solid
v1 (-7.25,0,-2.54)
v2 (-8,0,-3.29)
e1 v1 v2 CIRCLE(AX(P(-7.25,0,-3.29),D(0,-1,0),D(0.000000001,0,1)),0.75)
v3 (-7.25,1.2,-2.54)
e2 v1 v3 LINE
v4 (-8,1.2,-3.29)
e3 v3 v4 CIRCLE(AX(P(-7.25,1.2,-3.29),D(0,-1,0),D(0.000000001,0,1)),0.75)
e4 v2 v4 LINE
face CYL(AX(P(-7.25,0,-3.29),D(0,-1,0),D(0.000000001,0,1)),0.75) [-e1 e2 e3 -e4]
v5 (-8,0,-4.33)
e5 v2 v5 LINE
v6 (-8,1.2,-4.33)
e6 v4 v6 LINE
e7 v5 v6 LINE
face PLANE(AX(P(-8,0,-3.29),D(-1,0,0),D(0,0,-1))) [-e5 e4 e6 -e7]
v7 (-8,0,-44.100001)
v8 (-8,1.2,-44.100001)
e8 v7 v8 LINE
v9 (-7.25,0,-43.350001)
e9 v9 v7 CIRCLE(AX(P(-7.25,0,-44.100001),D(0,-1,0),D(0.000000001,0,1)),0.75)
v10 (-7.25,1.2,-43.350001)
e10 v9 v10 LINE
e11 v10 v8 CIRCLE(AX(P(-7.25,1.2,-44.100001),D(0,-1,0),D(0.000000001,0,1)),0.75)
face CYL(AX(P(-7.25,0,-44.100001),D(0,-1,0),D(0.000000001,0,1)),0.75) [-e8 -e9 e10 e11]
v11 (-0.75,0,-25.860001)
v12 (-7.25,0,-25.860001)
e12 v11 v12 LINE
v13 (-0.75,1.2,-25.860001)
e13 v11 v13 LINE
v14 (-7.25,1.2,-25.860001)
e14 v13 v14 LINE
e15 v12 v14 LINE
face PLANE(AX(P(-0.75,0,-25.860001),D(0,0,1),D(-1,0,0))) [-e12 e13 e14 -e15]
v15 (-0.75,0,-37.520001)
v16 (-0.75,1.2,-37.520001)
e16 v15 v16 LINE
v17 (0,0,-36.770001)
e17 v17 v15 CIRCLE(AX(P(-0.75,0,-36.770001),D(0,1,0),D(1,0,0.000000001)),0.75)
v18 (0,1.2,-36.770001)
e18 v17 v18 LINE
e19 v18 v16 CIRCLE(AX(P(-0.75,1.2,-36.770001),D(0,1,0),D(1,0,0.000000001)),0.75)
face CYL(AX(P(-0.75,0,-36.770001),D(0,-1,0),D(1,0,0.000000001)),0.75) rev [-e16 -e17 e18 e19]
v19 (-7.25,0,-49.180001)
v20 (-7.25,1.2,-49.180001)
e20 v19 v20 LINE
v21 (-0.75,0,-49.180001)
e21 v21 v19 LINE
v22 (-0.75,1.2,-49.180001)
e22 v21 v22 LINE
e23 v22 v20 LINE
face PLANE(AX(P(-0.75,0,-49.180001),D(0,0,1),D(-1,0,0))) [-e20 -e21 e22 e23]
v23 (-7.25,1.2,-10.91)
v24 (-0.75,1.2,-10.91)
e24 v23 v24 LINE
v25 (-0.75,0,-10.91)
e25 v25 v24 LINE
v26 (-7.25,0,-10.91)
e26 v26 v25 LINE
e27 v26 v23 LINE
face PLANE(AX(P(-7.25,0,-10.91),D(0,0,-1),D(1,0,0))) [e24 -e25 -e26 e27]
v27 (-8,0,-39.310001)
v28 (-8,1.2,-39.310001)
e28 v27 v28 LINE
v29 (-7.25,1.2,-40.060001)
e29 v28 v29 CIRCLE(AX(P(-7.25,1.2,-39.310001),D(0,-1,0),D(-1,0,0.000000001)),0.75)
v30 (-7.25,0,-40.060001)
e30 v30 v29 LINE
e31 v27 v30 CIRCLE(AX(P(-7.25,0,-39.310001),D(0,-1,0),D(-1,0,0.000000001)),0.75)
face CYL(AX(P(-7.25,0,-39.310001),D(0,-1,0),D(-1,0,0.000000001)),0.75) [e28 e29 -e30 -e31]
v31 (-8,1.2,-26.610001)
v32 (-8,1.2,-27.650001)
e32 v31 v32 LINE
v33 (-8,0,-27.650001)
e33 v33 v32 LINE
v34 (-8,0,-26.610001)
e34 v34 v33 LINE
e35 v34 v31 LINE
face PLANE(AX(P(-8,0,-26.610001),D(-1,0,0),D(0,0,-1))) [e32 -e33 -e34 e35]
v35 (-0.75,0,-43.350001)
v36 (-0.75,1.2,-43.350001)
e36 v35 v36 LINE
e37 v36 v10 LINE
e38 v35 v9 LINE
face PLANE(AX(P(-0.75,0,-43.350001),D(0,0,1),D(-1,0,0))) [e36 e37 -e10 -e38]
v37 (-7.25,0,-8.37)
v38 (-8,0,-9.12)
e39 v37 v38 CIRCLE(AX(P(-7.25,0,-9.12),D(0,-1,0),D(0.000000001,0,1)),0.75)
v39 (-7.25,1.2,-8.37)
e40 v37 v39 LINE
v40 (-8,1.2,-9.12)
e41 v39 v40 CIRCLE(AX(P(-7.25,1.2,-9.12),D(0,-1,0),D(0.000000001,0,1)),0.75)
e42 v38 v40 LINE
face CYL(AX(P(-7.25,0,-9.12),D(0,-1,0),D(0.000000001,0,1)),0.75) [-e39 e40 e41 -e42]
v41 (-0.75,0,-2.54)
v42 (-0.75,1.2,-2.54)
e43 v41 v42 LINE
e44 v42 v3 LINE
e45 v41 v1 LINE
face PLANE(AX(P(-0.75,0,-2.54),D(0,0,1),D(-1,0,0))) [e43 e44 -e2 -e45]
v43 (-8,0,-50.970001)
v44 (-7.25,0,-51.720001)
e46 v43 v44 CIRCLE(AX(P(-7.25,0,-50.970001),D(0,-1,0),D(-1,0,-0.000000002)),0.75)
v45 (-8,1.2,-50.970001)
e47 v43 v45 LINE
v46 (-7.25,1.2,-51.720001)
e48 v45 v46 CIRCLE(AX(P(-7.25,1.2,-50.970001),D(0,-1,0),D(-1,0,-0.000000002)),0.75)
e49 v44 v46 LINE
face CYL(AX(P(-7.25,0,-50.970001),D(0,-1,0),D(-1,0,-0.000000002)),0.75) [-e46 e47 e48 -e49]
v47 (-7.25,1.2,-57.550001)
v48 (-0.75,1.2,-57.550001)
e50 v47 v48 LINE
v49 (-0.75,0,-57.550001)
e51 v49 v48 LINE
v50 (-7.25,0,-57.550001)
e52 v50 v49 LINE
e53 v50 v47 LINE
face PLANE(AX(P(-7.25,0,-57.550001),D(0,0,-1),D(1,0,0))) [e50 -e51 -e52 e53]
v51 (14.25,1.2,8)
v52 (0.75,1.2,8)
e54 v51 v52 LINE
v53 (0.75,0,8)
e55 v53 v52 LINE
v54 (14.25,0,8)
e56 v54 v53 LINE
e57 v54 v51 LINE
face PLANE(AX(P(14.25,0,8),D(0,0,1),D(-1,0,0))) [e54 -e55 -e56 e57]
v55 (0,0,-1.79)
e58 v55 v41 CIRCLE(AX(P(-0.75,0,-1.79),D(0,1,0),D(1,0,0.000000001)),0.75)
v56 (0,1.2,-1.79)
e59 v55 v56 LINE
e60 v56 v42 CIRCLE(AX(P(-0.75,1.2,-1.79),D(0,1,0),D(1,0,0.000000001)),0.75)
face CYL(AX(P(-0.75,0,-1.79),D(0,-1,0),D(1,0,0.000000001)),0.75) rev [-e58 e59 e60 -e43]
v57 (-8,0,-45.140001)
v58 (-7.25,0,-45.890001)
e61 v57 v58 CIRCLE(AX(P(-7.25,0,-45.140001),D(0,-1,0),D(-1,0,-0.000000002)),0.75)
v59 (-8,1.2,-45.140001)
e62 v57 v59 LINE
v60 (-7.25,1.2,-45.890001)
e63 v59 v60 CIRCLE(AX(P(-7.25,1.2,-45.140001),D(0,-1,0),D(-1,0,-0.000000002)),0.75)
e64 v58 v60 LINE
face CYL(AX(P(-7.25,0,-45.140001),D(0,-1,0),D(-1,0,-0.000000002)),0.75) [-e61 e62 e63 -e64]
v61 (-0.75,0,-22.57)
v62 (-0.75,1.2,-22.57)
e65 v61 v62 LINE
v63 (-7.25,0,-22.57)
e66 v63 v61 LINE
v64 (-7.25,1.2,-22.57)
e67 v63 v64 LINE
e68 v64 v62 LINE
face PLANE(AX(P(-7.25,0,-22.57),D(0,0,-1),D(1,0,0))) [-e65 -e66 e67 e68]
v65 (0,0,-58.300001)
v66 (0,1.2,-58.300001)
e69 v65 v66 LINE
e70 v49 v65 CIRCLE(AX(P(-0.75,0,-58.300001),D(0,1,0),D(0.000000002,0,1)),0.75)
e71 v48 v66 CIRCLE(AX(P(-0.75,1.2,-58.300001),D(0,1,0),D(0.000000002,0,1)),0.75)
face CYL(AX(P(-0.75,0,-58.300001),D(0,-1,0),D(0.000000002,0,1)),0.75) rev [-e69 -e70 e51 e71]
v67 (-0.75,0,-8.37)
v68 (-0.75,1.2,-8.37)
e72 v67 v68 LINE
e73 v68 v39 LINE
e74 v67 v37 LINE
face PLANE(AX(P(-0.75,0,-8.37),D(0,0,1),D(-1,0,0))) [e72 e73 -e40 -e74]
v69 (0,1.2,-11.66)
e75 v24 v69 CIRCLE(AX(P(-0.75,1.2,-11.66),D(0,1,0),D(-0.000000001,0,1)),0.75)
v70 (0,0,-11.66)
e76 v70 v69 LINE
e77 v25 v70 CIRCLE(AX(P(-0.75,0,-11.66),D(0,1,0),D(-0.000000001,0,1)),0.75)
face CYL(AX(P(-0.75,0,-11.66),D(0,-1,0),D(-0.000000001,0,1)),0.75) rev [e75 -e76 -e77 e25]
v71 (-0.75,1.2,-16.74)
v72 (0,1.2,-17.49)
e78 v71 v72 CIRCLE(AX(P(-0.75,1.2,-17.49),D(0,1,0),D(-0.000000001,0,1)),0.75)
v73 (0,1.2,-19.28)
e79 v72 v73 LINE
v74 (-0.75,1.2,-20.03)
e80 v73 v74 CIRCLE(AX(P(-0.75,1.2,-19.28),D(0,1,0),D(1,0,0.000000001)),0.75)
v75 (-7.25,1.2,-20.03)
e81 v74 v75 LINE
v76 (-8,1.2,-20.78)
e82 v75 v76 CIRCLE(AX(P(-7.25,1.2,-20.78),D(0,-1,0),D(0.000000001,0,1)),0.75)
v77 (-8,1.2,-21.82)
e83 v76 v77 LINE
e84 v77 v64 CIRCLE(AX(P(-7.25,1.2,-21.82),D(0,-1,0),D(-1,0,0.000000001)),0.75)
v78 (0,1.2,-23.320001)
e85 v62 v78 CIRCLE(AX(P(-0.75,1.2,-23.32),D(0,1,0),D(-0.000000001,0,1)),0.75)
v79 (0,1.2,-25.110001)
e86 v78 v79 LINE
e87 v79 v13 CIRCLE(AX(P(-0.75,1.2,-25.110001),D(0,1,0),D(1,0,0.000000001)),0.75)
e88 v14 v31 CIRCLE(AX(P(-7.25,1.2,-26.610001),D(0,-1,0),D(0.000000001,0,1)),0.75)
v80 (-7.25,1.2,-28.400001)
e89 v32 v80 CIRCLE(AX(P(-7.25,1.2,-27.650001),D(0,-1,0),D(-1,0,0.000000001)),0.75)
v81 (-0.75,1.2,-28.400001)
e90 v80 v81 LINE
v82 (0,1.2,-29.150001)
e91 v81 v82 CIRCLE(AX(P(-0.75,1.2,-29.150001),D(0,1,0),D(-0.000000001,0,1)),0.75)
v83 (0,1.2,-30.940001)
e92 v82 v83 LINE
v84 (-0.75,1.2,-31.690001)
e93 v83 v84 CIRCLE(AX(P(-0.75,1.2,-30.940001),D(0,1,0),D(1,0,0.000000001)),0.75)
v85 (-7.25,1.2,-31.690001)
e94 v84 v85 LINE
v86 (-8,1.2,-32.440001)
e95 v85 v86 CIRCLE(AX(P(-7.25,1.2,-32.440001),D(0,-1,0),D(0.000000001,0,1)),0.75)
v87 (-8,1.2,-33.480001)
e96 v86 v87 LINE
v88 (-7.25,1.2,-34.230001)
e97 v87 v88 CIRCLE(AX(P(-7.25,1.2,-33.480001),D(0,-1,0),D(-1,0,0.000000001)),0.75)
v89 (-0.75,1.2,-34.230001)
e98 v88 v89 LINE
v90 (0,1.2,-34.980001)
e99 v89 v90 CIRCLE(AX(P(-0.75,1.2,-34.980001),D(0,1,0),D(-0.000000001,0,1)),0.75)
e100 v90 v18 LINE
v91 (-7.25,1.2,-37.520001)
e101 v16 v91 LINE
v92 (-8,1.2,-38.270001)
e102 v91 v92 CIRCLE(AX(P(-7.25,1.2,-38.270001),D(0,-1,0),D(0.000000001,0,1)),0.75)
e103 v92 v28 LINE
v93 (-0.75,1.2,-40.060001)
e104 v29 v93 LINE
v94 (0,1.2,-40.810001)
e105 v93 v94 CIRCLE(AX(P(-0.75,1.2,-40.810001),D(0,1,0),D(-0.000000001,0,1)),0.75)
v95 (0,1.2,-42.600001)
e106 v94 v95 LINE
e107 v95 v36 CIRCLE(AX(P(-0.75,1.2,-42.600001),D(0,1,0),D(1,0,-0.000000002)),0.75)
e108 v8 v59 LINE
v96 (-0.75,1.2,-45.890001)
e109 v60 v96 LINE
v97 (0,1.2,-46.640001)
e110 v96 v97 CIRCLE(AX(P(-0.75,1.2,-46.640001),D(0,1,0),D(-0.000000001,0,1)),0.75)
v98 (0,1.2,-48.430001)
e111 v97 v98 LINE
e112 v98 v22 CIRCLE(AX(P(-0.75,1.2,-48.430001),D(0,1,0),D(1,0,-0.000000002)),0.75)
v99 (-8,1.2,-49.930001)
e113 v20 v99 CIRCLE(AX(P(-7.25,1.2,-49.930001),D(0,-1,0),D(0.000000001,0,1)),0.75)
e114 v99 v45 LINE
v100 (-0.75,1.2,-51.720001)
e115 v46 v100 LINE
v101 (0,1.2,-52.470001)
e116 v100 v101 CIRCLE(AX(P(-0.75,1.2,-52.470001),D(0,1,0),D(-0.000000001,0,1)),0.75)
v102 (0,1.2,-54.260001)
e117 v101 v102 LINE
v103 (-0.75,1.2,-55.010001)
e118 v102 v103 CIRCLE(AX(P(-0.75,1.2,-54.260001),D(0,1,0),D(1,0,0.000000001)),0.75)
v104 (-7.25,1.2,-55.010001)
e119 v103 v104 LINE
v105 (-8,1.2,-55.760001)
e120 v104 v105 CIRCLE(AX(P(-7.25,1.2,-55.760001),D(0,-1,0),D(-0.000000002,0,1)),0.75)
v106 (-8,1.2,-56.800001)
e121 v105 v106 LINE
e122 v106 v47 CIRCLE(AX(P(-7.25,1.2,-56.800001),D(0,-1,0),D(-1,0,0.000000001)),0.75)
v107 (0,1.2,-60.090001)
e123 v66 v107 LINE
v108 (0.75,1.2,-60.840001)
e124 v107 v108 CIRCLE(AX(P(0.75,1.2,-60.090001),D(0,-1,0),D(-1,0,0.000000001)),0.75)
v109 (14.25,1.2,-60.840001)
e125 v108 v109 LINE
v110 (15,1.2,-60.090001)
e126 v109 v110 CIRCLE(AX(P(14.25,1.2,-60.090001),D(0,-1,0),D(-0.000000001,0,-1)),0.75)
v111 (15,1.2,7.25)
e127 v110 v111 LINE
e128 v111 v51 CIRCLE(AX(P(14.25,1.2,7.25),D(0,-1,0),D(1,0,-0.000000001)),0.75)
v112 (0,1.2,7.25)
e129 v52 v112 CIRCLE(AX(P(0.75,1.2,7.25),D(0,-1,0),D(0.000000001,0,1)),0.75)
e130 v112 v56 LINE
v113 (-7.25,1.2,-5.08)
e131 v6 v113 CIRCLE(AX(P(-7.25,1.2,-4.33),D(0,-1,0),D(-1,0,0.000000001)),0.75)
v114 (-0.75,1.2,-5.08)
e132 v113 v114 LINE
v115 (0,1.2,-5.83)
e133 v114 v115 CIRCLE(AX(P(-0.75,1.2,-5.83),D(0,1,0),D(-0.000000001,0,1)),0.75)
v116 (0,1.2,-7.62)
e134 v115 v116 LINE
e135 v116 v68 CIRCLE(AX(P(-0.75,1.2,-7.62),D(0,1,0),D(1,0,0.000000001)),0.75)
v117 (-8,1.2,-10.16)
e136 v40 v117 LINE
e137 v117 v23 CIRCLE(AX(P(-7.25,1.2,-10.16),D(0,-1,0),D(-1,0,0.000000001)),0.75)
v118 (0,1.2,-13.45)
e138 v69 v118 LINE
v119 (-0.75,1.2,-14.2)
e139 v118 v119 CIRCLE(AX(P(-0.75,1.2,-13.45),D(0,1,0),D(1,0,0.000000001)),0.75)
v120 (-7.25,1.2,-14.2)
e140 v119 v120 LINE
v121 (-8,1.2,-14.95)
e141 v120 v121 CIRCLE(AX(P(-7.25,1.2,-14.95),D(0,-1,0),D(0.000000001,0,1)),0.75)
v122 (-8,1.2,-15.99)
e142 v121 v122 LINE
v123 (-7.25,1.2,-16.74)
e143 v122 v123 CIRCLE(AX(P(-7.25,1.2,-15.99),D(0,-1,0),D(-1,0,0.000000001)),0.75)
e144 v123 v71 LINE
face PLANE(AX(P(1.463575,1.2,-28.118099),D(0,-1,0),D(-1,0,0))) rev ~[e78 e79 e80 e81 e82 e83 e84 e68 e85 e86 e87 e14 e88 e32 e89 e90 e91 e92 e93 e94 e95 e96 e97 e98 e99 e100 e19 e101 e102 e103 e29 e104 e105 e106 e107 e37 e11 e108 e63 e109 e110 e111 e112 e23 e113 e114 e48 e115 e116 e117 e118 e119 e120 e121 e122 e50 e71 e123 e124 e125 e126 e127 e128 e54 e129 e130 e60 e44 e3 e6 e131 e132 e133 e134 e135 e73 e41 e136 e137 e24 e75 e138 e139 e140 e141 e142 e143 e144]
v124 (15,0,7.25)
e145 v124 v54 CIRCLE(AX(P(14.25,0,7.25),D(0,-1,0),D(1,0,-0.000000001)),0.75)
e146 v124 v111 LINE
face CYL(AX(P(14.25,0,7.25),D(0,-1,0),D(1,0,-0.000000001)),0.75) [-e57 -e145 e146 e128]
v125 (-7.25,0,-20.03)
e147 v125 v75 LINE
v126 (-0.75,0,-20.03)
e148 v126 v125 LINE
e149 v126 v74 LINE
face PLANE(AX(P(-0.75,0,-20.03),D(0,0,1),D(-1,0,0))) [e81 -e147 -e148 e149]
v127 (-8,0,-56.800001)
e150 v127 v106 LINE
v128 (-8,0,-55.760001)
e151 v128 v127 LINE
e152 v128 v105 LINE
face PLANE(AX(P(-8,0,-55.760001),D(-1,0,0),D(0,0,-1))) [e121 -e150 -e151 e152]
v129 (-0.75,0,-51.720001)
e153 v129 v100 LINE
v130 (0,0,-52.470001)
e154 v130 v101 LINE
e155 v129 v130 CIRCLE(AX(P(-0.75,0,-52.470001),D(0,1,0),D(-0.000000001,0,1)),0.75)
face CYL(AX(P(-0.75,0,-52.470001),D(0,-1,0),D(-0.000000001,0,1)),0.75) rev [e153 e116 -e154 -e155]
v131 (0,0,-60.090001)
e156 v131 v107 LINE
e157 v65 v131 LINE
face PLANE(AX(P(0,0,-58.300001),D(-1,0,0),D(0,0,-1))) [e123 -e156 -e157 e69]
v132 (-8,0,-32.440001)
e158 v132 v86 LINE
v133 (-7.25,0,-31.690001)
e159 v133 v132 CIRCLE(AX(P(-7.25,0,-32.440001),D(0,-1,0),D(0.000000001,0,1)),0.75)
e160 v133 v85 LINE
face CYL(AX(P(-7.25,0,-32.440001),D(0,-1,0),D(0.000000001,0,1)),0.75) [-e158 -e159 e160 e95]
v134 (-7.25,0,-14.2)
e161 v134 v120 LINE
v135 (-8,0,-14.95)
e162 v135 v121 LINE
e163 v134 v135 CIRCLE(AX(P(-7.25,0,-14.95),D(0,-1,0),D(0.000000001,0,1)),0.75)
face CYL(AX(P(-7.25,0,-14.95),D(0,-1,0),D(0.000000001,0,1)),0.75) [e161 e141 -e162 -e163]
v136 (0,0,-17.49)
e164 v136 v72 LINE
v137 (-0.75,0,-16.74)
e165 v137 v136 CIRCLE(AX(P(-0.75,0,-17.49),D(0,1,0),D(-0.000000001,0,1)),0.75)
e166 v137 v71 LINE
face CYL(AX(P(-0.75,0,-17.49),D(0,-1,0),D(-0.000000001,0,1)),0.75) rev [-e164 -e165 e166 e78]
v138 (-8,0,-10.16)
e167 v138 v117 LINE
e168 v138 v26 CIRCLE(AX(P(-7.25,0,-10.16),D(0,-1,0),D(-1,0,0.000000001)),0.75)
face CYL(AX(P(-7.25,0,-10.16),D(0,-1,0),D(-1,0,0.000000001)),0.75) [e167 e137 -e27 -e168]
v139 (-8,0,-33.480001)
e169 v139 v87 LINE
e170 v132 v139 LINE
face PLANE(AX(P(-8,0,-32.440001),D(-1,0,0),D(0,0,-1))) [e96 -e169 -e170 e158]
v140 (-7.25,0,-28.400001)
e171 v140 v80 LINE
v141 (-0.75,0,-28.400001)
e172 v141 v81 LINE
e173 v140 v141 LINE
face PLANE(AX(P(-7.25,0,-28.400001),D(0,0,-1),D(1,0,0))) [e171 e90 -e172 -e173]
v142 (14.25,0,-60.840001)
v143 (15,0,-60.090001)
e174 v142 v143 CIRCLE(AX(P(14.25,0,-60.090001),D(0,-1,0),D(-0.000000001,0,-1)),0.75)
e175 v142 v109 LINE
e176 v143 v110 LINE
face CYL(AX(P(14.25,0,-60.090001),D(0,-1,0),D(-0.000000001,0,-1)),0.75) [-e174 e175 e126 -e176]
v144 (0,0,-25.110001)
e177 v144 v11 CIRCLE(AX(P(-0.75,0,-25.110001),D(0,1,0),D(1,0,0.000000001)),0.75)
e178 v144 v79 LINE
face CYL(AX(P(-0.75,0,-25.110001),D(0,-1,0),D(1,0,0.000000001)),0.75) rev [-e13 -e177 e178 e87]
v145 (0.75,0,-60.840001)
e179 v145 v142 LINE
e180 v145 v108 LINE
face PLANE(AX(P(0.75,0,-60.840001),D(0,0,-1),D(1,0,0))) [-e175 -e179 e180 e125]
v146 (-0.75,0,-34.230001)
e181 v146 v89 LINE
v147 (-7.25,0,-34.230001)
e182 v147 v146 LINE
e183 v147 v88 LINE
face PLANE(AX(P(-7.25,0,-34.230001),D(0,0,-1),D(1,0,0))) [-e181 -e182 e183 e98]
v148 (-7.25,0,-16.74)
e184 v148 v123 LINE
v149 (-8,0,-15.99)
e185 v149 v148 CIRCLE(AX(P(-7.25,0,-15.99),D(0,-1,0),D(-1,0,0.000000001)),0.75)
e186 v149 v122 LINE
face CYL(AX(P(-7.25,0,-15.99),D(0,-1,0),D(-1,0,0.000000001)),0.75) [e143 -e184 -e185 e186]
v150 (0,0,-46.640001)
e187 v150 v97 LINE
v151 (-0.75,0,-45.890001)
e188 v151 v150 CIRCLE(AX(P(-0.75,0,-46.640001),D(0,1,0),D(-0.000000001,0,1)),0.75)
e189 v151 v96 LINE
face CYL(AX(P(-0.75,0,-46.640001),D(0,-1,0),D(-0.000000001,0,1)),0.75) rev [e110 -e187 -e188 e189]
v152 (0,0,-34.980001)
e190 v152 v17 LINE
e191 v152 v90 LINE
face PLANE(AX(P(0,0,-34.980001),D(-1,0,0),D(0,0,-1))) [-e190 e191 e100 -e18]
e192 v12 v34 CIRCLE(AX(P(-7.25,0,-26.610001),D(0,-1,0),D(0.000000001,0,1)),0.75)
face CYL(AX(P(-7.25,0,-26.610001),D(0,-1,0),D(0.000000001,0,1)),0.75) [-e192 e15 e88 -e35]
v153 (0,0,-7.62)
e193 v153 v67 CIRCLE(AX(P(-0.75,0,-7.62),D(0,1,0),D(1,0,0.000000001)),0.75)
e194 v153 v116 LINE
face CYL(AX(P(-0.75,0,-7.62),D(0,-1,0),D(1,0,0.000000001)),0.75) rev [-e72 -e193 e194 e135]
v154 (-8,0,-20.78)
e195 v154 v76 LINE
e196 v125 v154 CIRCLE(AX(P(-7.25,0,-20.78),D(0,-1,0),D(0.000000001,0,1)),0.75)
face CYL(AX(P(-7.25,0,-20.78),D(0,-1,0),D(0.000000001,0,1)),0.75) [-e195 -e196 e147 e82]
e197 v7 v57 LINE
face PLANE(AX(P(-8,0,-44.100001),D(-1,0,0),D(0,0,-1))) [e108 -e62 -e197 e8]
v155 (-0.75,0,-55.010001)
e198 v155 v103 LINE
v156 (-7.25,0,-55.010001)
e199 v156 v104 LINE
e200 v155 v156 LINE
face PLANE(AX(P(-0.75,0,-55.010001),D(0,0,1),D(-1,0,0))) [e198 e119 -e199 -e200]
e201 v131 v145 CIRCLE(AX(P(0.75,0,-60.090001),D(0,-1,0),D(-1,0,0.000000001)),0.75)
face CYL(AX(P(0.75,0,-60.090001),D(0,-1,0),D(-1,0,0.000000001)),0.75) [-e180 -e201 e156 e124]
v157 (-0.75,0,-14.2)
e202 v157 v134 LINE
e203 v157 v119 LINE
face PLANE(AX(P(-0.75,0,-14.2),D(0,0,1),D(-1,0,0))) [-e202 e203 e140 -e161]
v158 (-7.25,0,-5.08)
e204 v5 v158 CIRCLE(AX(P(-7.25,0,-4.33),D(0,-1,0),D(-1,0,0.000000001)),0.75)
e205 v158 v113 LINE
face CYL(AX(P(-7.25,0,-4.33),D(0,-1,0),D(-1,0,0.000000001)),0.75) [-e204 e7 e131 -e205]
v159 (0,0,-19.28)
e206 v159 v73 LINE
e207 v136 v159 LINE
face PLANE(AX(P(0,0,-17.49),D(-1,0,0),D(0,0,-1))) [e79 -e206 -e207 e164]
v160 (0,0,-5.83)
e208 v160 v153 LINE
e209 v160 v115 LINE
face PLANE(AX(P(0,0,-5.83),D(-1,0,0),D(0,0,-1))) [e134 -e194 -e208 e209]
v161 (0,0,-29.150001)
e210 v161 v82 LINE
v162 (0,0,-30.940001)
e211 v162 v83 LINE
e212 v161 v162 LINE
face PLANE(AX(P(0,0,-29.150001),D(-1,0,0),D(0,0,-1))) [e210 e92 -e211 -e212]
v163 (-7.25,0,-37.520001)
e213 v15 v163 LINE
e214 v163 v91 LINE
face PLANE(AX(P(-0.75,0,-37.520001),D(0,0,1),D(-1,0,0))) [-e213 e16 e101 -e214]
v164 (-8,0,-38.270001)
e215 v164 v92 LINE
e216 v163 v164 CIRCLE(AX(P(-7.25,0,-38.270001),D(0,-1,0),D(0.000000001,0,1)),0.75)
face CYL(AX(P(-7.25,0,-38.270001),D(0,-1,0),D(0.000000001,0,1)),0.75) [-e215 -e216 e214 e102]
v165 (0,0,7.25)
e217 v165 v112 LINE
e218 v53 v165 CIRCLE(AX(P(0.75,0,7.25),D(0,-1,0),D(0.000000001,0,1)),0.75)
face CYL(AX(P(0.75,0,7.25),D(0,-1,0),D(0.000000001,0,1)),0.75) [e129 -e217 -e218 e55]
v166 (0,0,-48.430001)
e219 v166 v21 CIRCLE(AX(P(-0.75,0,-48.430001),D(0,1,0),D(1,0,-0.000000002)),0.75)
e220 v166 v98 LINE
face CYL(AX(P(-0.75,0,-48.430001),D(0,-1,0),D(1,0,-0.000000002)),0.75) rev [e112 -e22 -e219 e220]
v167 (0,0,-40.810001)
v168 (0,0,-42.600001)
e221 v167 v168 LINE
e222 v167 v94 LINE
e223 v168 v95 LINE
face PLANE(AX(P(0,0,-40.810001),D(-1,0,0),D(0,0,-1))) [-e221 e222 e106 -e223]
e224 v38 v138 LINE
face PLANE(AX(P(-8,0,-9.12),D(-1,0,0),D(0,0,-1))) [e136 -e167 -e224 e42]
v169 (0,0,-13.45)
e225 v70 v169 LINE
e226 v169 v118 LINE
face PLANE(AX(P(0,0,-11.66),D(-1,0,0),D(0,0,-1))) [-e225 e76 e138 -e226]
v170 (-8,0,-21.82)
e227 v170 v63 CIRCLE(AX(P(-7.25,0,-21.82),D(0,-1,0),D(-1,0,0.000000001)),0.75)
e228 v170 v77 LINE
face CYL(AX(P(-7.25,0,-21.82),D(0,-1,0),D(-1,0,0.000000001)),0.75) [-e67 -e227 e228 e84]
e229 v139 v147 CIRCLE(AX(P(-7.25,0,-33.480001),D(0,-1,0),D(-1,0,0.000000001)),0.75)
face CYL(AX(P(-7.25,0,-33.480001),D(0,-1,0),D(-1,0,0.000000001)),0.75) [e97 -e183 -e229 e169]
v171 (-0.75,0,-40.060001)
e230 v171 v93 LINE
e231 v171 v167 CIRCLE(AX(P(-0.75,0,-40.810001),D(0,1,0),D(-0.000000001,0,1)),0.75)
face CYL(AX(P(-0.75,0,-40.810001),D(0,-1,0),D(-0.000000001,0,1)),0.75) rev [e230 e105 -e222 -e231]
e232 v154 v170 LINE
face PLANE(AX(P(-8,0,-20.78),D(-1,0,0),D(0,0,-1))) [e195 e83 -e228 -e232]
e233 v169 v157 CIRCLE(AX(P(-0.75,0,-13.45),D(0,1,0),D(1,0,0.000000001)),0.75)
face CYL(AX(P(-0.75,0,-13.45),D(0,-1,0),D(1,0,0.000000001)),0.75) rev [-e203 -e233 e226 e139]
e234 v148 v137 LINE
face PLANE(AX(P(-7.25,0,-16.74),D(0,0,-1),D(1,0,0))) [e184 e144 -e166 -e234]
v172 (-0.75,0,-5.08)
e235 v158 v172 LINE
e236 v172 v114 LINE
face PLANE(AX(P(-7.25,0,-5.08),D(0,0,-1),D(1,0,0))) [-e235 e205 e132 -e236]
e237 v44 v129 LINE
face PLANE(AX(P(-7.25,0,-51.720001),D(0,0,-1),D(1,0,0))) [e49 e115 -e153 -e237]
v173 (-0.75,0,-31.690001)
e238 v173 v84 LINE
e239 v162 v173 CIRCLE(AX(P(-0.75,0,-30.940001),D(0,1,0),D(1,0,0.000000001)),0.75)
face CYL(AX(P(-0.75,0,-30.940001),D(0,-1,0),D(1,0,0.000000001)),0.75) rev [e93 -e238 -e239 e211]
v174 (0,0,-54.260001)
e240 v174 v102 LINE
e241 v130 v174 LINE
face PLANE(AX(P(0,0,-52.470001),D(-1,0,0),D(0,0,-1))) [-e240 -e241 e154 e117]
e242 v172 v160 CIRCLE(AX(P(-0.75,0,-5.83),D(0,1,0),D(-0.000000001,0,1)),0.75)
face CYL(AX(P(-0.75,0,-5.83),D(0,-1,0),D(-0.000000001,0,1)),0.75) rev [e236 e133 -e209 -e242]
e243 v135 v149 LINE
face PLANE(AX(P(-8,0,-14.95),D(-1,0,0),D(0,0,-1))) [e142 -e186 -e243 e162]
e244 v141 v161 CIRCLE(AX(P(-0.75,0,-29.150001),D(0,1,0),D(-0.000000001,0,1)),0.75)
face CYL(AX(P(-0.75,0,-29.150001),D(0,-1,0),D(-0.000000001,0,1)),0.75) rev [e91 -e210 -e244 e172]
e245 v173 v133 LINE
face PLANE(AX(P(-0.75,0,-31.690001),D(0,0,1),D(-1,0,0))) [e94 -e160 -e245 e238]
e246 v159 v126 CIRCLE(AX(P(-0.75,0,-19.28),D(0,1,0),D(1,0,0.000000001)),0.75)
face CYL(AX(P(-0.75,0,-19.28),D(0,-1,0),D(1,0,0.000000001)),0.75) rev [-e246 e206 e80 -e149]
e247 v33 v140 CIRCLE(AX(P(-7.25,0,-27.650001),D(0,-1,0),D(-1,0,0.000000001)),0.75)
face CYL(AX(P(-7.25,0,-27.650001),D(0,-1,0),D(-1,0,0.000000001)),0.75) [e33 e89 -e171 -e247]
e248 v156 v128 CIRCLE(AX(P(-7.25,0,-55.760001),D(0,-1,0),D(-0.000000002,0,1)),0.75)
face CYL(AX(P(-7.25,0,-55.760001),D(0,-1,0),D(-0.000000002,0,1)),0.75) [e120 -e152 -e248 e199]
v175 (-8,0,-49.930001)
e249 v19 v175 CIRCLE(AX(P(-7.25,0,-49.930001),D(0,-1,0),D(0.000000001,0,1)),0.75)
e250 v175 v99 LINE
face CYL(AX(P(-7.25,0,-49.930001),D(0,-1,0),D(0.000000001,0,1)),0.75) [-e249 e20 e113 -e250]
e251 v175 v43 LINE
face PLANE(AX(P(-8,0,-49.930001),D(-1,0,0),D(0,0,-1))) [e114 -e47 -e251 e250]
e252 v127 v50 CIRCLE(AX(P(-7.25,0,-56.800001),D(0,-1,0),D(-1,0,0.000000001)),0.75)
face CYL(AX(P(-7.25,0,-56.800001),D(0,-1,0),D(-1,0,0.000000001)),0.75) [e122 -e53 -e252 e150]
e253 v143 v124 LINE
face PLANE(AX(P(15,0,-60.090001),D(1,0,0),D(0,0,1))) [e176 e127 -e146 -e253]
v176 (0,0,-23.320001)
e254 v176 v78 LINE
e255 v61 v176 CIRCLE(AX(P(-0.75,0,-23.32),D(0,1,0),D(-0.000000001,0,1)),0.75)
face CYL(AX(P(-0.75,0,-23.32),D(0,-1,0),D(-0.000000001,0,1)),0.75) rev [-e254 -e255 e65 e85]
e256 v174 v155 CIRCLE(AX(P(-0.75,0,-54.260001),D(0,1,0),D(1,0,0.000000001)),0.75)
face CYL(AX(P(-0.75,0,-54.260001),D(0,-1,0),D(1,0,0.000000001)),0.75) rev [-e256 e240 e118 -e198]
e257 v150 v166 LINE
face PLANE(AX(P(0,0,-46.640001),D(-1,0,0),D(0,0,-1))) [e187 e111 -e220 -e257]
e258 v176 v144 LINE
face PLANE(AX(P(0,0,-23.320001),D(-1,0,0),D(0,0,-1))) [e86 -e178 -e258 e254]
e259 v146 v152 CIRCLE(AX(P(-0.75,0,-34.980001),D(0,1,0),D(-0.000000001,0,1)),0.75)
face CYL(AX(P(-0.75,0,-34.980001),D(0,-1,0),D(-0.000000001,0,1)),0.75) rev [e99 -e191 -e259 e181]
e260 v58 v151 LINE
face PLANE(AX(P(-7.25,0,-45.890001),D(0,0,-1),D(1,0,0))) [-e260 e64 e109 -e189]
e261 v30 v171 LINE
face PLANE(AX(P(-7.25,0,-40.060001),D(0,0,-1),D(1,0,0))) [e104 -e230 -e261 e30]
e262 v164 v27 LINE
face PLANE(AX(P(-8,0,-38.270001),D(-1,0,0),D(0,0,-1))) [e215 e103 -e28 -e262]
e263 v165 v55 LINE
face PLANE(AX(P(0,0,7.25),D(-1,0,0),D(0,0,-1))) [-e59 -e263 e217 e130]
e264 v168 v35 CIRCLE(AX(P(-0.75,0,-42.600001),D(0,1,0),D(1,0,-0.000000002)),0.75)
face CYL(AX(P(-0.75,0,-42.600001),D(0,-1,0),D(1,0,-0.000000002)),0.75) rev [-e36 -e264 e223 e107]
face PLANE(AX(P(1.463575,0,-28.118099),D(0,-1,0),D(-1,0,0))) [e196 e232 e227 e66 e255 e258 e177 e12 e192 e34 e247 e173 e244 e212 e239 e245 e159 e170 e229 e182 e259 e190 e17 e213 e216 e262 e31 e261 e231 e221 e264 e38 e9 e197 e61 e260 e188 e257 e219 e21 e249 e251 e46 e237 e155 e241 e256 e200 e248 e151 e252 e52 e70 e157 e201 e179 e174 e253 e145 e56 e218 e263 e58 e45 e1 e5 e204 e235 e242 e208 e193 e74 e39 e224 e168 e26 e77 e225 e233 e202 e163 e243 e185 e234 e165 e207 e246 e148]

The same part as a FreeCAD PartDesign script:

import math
import FreeCAD as App
import Part
import Sketcher

V = App.Vector
Q = App.Units.Quantity

doc = App.newDocument("Part")
body = doc.addObject("PartDesign::Body", "Body")

sketch1 = body.newObject("Sketcher::SketchObject", "Sketch")
sketch1.AttachmentSupport = (doc.getObject("XZ_Plane"), [""])
sketch1.MapMode = "FlatFace"
sketch1.addGeometry(Part.LineSegment(V(-7.2, -2.5, 0), V(-0.8, -2.5, 0)), False)
sketch1.addGeometry(Part.ArcOfCircle(Part.Circle(V(-0.8, -1.8, 0), V(0, 0, 1), 0.8), math.radians(-90), math.radians(0)), False)
sketch1.addGeometry(Part.LineSegment(V(0, -1.8, 0), V(0, 7.2, 0)), False)
sketch1.addGeometry(Part.ArcOfCircle(Part.Circle(V(0.8, 7.2, 0), V(0, 0, 1), 0.8), math.radians(90), math.radians(180)), False)
sketch1.addGeometry(Part.LineSegment(V(0.8, 8, 0), V(14.2, 8, 0)), False)
sketch1.addGeometry(Part.ArcOfCircle(Part.Circle(V(14.2, 7.2, 0), V(0, 0, 1), 0.8), math.radians(0), math.radians(90)), False)
sketch1.addGeometry(Part.LineSegment(V(15, 7.2, 0), V(15, -60.1, 0)), False)
sketch1.addGeometry(Part.ArcOfCircle(Part.Circle(V(14.2, -60.1, 0), V(0, 0, 1), 0.8), math.radians(-90), math.radians(0)), False)
sketch1.addGeometry(Part.LineSegment(V(14.2, -60.8, 0), V(0.8, -60.8, 0)), False)
sketch1.addGeometry(Part.ArcOfCircle(Part.Circle(V(0.8, -60.1, 0), V(0, 0, 1), 0.8), math.radians(180), math.radians(270)), False)
sketch1.addGeometry(Part.LineSegment(V(0, -60.1, 0), V(0, -58.3, 0)), False)
sketch1.addGeometry(Part.ArcOfCircle(Part.Circle(V(-0.8, -58.3, 0), V(0, 0, 1), 0.8), math.radians(0), math.radians(90)), False)
sketch1.addGeometry(Part.LineSegment(V(-0.8, -57.6, 0), V(-7.2, -57.6, 0)), False)
sketch1.addGeometry(Part.ArcOfCircle(Part.Circle(V(-7.2, -56.8, 0), V(0, 0, 1), 0.8), math.radians(180), math.radians(270)), False)
sketch1.addGeometry(Part.LineSegment(V(-8, -56.8, 0), V(-8, -55.8, 0)), False)
sketch1.addGeometry(Part.ArcOfCircle(Part.Circle(V(-7.2, -55.8, 0), V(0, 0, 1), 0.8), math.radians(90), math.radians(180)), False)
sketch1.addGeometry(Part.LineSegment(V(-7.2, -55, 0), V(-0.8, -55, 0)), False)
sketch1.addGeometry(Part.ArcOfCircle(Part.Circle(V(-0.8, -54.3, 0), V(0, 0, 1), 0.8), math.radians(-90), math.radians(0)), False)
sketch1.addGeometry(Part.LineSegment(V(0, -54.3, 0), V(0, -52.5, 0)), False)
sketch1.addGeometry(Part.ArcOfCircle(Part.Circle(V(-0.8, -52.5, 0), V(0, 0, 1), 0.8), math.radians(0), math.radians(90)), False)
sketch1.addGeometry(Part.LineSegment(V(-0.8, -51.7, 0), V(-7.2, -51.7, 0)), False)
sketch1.addGeometry(Part.ArcOfCircle(Part.Circle(V(-7.2, -51, 0), V(0, 0, 1), 0.8), math.radians(-180), math.radians(-90)), False)
sketch1.addGeometry(Part.LineSegment(V(-8, -51, 0), V(-8, -49.9, 0)), False)
sketch1.addGeometry(Part.ArcOfCircle(Part.Circle(V(-7.2, -49.9, 0), V(0, 0, 1), 0.8), math.radians(90), math.radians(180)), False)
sketch1.addGeometry(Part.LineSegment(V(-7.2, -49.2, 0), V(-0.8, -49.2, 0)), False)
sketch1.addGeometry(Part.ArcOfCircle(Part.Circle(V(-0.8, -48.4, 0), V(0, 0, 1), 0.8), math.radians(-90), math.radians(0)), False)
sketch1.addGeometry(Part.LineSegment(V(0, -48.4, 0), V(0, -46.6, 0)), False)
sketch1.addGeometry(Part.ArcOfCircle(Part.Circle(V(-0.8, -46.6, 0), V(0, 0, 1), 0.8), math.radians(0), math.radians(90)), False)
sketch1.addGeometry(Part.LineSegment(V(-0.8, -45.9, 0), V(-7.2, -45.9, 0)), False)
sketch1.addGeometry(Part.ArcOfCircle(Part.Circle(V(-7.2, -45.1, 0), V(0, 0, 1), 0.8), math.radians(-180), math.radians(-90)), False)
sketch1.addGeometry(Part.LineSegment(V(-8, -45.1, 0), V(-8, -44.1, 0)), False)
sketch1.addGeometry(Part.ArcOfCircle(Part.Circle(V(-7.2, -44.1, 0), V(0, 0, 1), 0.8), math.radians(90), math.radians(180)), False)
sketch1.addGeometry(Part.LineSegment(V(-7.2, -43.4, 0), V(-0.8, -43.4, 0)), False)
sketch1.addGeometry(Part.ArcOfCircle(Part.Circle(V(-0.8, -42.6, 0), V(0, 0, 1), 0.8), math.radians(-90), math.radians(0)), False)
sketch1.addGeometry(Part.LineSegment(V(0, -42.6, 0), V(0, -40.8, 0)), False)
sketch1.addGeometry(Part.ArcOfCircle(Part.Circle(V(-0.8, -40.8, 0), V(0, 0, 1), 0.8), math.radians(0), math.radians(90)), False)
sketch1.addGeometry(Part.LineSegment(V(-0.8, -40.1, 0), V(-7.2, -40.1, 0)), False)
sketch1.addGeometry(Part.ArcOfCircle(Part.Circle(V(-7.2, -39.3, 0), V(0, 0, 1), 0.8), math.radians(180), math.radians(270)), False)
sketch1.addGeometry(Part.LineSegment(V(-8, -39.3, 0), V(-8, -38.3, 0)), False)
sketch1.addGeometry(Part.ArcOfCircle(Part.Circle(V(-7.2, -38.3, 0), V(0, 0, 1), 0.8), math.radians(90), math.radians(180)), False)
sketch1.addGeometry(Part.LineSegment(V(-7.2, -37.5, 0), V(-0.8, -37.5, 0)), False)
sketch1.addGeometry(Part.ArcOfCircle(Part.Circle(V(-0.8, -36.8, 0), V(0, 0, 1), 0.8), math.radians(-90), math.radians(0)), False)
sketch1.addGeometry(Part.LineSegment(V(0, -36.8, 0), V(0, -35, 0)), False)
sketch1.addGeometry(Part.ArcOfCircle(Part.Circle(V(-0.8, -35, 0), V(0, 0, 1), 0.8), math.radians(0), math.radians(90)), False)
sketch1.addGeometry(Part.LineSegment(V(-0.8, -34.2, 0), V(-7.2, -34.2, 0)), False)
sketch1.addGeometry(Part.ArcOfCircle(Part.Circle(V(-7.2, -33.5, 0), V(0, 0, 1), 0.8), math.radians(180), math.radians(270)), False)
sketch1.addGeometry(Part.LineSegment(V(-8, -33.5, 0), V(-8, -32.4, 0)), False)
sketch1.addGeometry(Part.ArcOfCircle(Part.Circle(V(-7.2, -32.4, 0), V(0, 0, 1), 0.8), math.radians(90), math.radians(180)), False)
sketch1.addGeometry(Part.LineSegment(V(-7.2, -31.7, 0), V(-0.8, -31.7, 0)), False)
sketch1.addGeometry(Part.ArcOfCircle(Part.Circle(V(-0.8, -30.9, 0), V(0, 0, 1), 0.8), math.radians(-90), math.radians(0)), False)
sketch1.addGeometry(Part.LineSegment(V(0, -30.9, 0), V(0, -29.2, 0)), False)
sketch1.addGeometry(Part.ArcOfCircle(Part.Circle(V(-0.8, -29.2, 0), V(0, 0, 1), 0.8), math.radians(0), math.radians(90)), False)
sketch1.addGeometry(Part.LineSegment(V(-0.8, -28.4, 0), V(-7.2, -28.4, 0)), False)
sketch1.addGeometry(Part.ArcOfCircle(Part.Circle(V(-7.2, -27.7, 0), V(0, 0, 1), 0.8), math.radians(180), math.radians(270)), False)
sketch1.addGeometry(Part.LineSegment(V(-8, -27.7, 0), V(-8, -26.6, 0)), False)
sketch1.addGeometry(Part.ArcOfCircle(Part.Circle(V(-7.2, -26.6, 0), V(0, 0, 1), 0.8), math.radians(90), math.radians(180)), False)
sketch1.addGeometry(Part.LineSegment(V(-7.2, -25.9, 0), V(-0.8, -25.9, 0)), False)
sketch1.addGeometry(Part.ArcOfCircle(Part.Circle(V(-0.8, -25.1, 0), V(0, 0, 1), 0.8), math.radians(-90), math.radians(0)), False)
sketch1.addGeometry(Part.LineSegment(V(0, -25.1, 0), V(0, -23.3, 0)), False)
sketch1.addGeometry(Part.ArcOfCircle(Part.Circle(V(-0.8, -23.3, 0), V(0, 0, 1), 0.8), math.radians(0), math.radians(90)), False)
sketch1.addGeometry(Part.LineSegment(V(-0.8, -22.6, 0), V(-7.2, -22.6, 0)), False)
sketch1.addGeometry(Part.ArcOfCircle(Part.Circle(V(-7.2, -21.8, 0), V(0, 0, 1), 0.8), math.radians(180), math.radians(270)), False)
sketch1.addGeometry(Part.LineSegment(V(-8, -21.8, 0), V(-8, -20.8, 0)), False)
sketch1.addGeometry(Part.ArcOfCircle(Part.Circle(V(-7.2, -20.8, 0), V(0, 0, 1), 0.8), math.radians(90), math.radians(180)), False)
sketch1.addGeometry(Part.LineSegment(V(-7.2, -20, 0), V(-0.8, -20, 0)), False)
sketch1.addGeometry(Part.ArcOfCircle(Part.Circle(V(-0.8, -19.3, 0), V(0, 0, 1), 0.8), math.radians(-90), math.radians(0)), False)
sketch1.addGeometry(Part.LineSegment(V(0, -19.3, 0), V(0, -17.5, 0)), False)
sketch1.addGeometry(Part.ArcOfCircle(Part.Circle(V(-0.8, -17.5, 0), V(0, 0, 1), 0.8), math.radians(0), math.radians(90)), False)
sketch1.addGeometry(Part.LineSegment(V(-0.8, -16.7, 0), V(-7.2, -16.7, 0)), False)
sketch1.addGeometry(Part.ArcOfCircle(Part.Circle(V(-7.2, -16, 0), V(0, 0, 1), 0.8), math.radians(180), math.radians(270)), False)
sketch1.addGeometry(Part.LineSegment(V(-8, -16, 0), V(-8, -15, 0)), False)
sketch1.addGeometry(Part.ArcOfCircle(Part.Circle(V(-7.2, -15, 0), V(0, 0, 1), 0.8), math.radians(90), math.radians(180)), False)
sketch1.addGeometry(Part.LineSegment(V(-7.2, -14.2, 0), V(-0.8, -14.2, 0)), False)
sketch1.addGeometry(Part.ArcOfCircle(Part.Circle(V(-0.8, -13.5, 0), V(0, 0, 1), 0.8), math.radians(-90), math.radians(0)), False)
sketch1.addGeometry(Part.LineSegment(V(0, -13.5, 0), V(0, -11.7, 0)), False)
sketch1.addGeometry(Part.ArcOfCircle(Part.Circle(V(-0.8, -11.7, 0), V(0, 0, 1), 0.8), math.radians(0), math.radians(90)), False)
sketch1.addGeometry(Part.LineSegment(V(-0.8, -10.9, 0), V(-7.2, -10.9, 0)), False)
sketch1.addGeometry(Part.ArcOfCircle(Part.Circle(V(-7.2, -10.2, 0), V(0, 0, 1), 0.8), math.radians(180), math.radians(270)), False)
sketch1.addGeometry(Part.LineSegment(V(-8, -10.2, 0), V(-8, -9.1, 0)), False)
sketch1.addGeometry(Part.ArcOfCircle(Part.Circle(V(-7.2, -9.1, 0), V(0, 0, 1), 0.8), math.radians(90), math.radians(180)), False)
sketch1.addGeometry(Part.LineSegment(V(-7.2, -8.4, 0), V(-0.8, -8.4, 0)), False)
sketch1.addGeometry(Part.ArcOfCircle(Part.Circle(V(-0.8, -7.6, 0), V(0, 0, 1), 0.8), math.radians(-90), math.radians(0)), False)
sketch1.addGeometry(Part.LineSegment(V(0, -7.6, 0), V(0, -5.8, 0)), False)
sketch1.addGeometry(Part.ArcOfCircle(Part.Circle(V(-0.8, -5.8, 0), V(0, 0, 1), 0.8), math.radians(0), math.radians(90)), False)
sketch1.addGeometry(Part.LineSegment(V(-0.8, -5.1, 0), V(-7.2, -5.1, 0)), False)
sketch1.addGeometry(Part.ArcOfCircle(Part.Circle(V(-7.2, -4.3, 0), V(0, 0, 1), 0.8), math.radians(180), math.radians(270)), False)
sketch1.addGeometry(Part.LineSegment(V(-8, -4.3, 0), V(-8, -3.3, 0)), False)
sketch1.addGeometry(Part.ArcOfCircle(Part.Circle(V(-7.2, -3.3, 0), V(0, 0, 1), 0.8), math.radians(90), math.radians(180)), False)
sketch1.addConstraint(Sketcher.Constraint("Tangent", 0, 2, 1, 1))
sketch1.addConstraint(Sketcher.Constraint("Tangent", 1, 2, 2, 1))
sketch1.addConstraint(Sketcher.Constraint("Tangent", 2, 2, 3, 2))
sketch1.addConstraint(Sketcher.Constraint("Tangent", 3, 1, 4, 1))
sketch1.addConstraint(Sketcher.Constraint("Tangent", 4, 2, 5, 2))
sketch1.addConstraint(Sketcher.Constraint("Tangent", 5, 1, 6, 1))
sketch1.addConstraint(Sketcher.Constraint("Tangent", 6, 2, 7, 2))
sketch1.addConstraint(Sketcher.Constraint("Tangent", 7, 1, 8, 1))
sketch1.addConstraint(Sketcher.Constraint("Tangent", 8, 2, 9, 2))
sketch1.addConstraint(Sketcher.Constraint("Tangent", 9, 1, 10, 1))
sketch1.addConstraint(Sketcher.Constraint("Tangent", 10, 2, 11, 1))
sketch1.addConstraint(Sketcher.Constraint("Tangent", 11, 2, 12, 1))
sketch1.addConstraint(Sketcher.Constraint("Tangent", 12, 2, 13, 2))
sketch1.addConstraint(Sketcher.Constraint("Tangent", 13, 1, 14, 1))
sketch1.addConstraint(Sketcher.Constraint("Tangent", 14, 2, 15, 2))
sketch1.addConstraint(Sketcher.Constraint("Tangent", 15, 1, 16, 1))
sketch1.addConstraint(Sketcher.Constraint("Tangent", 16, 2, 17, 1))
sketch1.addConstraint(Sketcher.Constraint("Tangent", 17, 2, 18, 1))
sketch1.addConstraint(Sketcher.Constraint("Tangent", 18, 2, 19, 1))
sketch1.addConstraint(Sketcher.Constraint("Tangent", 19, 2, 20, 1))
sketch1.addConstraint(Sketcher.Constraint("Tangent", 20, 2, 21, 2))
sketch1.addConstraint(Sketcher.Constraint("Tangent", 21, 1, 22, 1))
sketch1.addConstraint(Sketcher.Constraint("Tangent", 22, 2, 23, 2))
sketch1.addConstraint(Sketcher.Constraint("Tangent", 23, 1, 24, 1))
sketch1.addConstraint(Sketcher.Constraint("Tangent", 24, 2, 25, 1))
sketch1.addConstraint(Sketcher.Constraint("Tangent", 25, 2, 26, 1))
sketch1.addConstraint(Sketcher.Constraint("Tangent", 26, 2, 27, 1))
sketch1.addConstraint(Sketcher.Constraint("Tangent", 27, 2, 28, 1))
sketch1.addConstraint(Sketcher.Constraint("Tangent", 28, 2, 29, 2))
sketch1.addConstraint(Sketcher.Constraint("Tangent", 29, 1, 30, 1))
sketch1.addConstraint(Sketcher.Constraint("Tangent", 30, 2, 31, 2))
sketch1.addConstraint(Sketcher.Constraint("Tangent", 31, 1, 32, 1))
sketch1.addConstraint(Sketcher.Constraint("Tangent", 32, 2, 33, 1))
sketch1.addConstraint(Sketcher.Constraint("Tangent", 33, 2, 34, 1))
sketch1.addConstraint(Sketcher.Constraint("Tangent", 34, 2, 35, 1))
sketch1.addConstraint(Sketcher.Constraint("Tangent", 35, 2, 36, 1))
sketch1.addConstraint(Sketcher.Constraint("Tangent", 36, 2, 37, 2))
sketch1.addConstraint(Sketcher.Constraint("Tangent", 37, 1, 38, 1))
sketch1.addConstraint(Sketcher.Constraint("Tangent", 38, 2, 39, 2))
sketch1.addConstraint(Sketcher.Constraint("Tangent", 39, 1, 40, 1))
sketch1.addConstraint(Sketcher.Constraint("Tangent", 40, 2, 41, 1))
sketch1.addConstraint(Sketcher.Constraint("Tangent", 41, 2, 42, 1))
sketch1.addConstraint(Sketcher.Constraint("Tangent", 42, 2, 43, 1))
sketch1.addConstraint(Sketcher.Constraint("Tangent", 43, 2, 44, 1))
sketch1.addConstraint(Sketcher.Constraint("Tangent", 44, 2, 45, 2))
sketch1.addConstraint(Sketcher.Constraint("Tangent", 45, 1, 46, 1))
sketch1.addConstraint(Sketcher.Constraint("Tangent", 46, 2, 47, 2))
sketch1.addConstraint(Sketcher.Constraint("Tangent", 47, 1, 48, 1))
sketch1.addConstraint(Sketcher.Constraint("Tangent", 48, 2, 49, 1))
sketch1.addConstraint(Sketcher.Constraint("Tangent", 49, 2, 50, 1))
sketch1.addConstraint(Sketcher.Constraint("Tangent", 50, 2, 51, 1))
sketch1.addConstraint(Sketcher.Constraint("Tangent", 51, 2, 52, 1))
sketch1.addConstraint(Sketcher.Constraint("Tangent", 52, 2, 53, 2))
sketch1.addConstraint(Sketcher.Constraint("Tangent", 53, 1, 54, 1))
sketch1.addConstraint(Sketcher.Constraint("Tangent", 54, 2, 55, 2))
sketch1.addConstraint(Sketcher.Constraint("Tangent", 55, 1, 56, 1))
sketch1.addConstraint(Sketcher.Constraint("Tangent", 56, 2, 57, 1))
sketch1.addConstraint(Sketcher.Constraint("Tangent", 57, 2, 58, 1))
sketch1.addConstraint(Sketcher.Constraint("Tangent", 58, 2, 59, 1))
sketch1.addConstraint(Sketcher.Constraint("Tangent", 59, 2, 60, 1))
sketch1.addConstraint(Sketcher.Constraint("Tangent", 60, 2, 61, 2))
sketch1.addConstraint(Sketcher.Constraint("Tangent", 61, 1, 62, 1))
sketch1.addConstraint(Sketcher.Constraint("Tangent", 62, 2, 63, 2))
sketch1.addConstraint(Sketcher.Constraint("Tangent", 63, 1, 64, 1))
sketch1.addConstraint(Sketcher.Constraint("Tangent", 64, 2, 65, 1))
sketch1.addConstraint(Sketcher.Constraint("Tangent", 65, 2, 66, 1))
sketch1.addConstraint(Sketcher.Constraint("Tangent", 66, 2, 67, 1))
sketch1.addConstraint(Sketcher.Constraint("Tangent", 67, 2, 68, 1))
sketch1.addConstraint(Sketcher.Constraint("Tangent", 68, 2, 69, 2))
sketch1.addConstraint(Sketcher.Constraint("Tangent", 69, 1, 70, 1))
sketch1.addConstraint(Sketcher.Constraint("Tangent", 70, 2, 71, 2))
sketch1.addConstraint(Sketcher.Constraint("Tangent", 71, 1, 72, 1))
sketch1.addConstraint(Sketcher.Constraint("Tangent", 72, 2, 73, 1))
sketch1.addConstraint(Sketcher.Constraint("Tangent", 73, 2, 74, 1))
sketch1.addConstraint(Sketcher.Constraint("Tangent", 74, 2, 75, 1))
sketch1.addConstraint(Sketcher.Constraint("Tangent", 75, 2, 76, 1))
sketch1.addConstraint(Sketcher.Constraint("Tangent", 76, 2, 77, 2))
sketch1.addConstraint(Sketcher.Constraint("Tangent", 77, 1, 78, 1))
sketch1.addConstraint(Sketcher.Constraint("Tangent", 78, 2, 79, 2))
sketch1.addConstraint(Sketcher.Constraint("Tangent", 79, 1, 80, 1))
sketch1.addConstraint(Sketcher.Constraint("Tangent", 80, 2, 81, 1))
sketch1.addConstraint(Sketcher.Constraint("Tangent", 81, 2, 82, 1))
sketch1.addConstraint(Sketcher.Constraint("Tangent", 82, 2, 83, 1))
sketch1.addConstraint(Sketcher.Constraint("Tangent", 83, 2, 84, 1))
sketch1.addConstraint(Sketcher.Constraint("Tangent", 84, 2, 85, 2))
sketch1.addConstraint(Sketcher.Constraint("Tangent", 85, 1, 86, 1))
sketch1.addConstraint(Sketcher.Constraint("Tangent", 86, 2, 87, 2))
sketch1.addConstraint(Sketcher.Constraint("Tangent", 87, 1, 0, 1))
sketch1.addConstraint(Sketcher.Constraint("Horizontal", 0))
sketch1.addConstraint(Sketcher.Constraint("Vertical", 2))
sketch1.addConstraint(Sketcher.Constraint("Horizontal", 4))
sketch1.addConstraint(Sketcher.Constraint("Vertical", 6))
sketch1.addConstraint(Sketcher.Constraint("Horizontal", 8))
sketch1.addConstraint(Sketcher.Constraint("Vertical", 10))
sketch1.addConstraint(Sketcher.Constraint("Horizontal", 12))
sketch1.addConstraint(Sketcher.Constraint("Vertical", 14))
sketch1.addConstraint(Sketcher.Constraint("Horizontal", 16))
sketch1.addConstraint(Sketcher.Constraint("Vertical", 18))
sketch1.addConstraint(Sketcher.Constraint("Horizontal", 20))
sketch1.addConstraint(Sketcher.Constraint("Vertical", 22))
sketch1.addConstraint(Sketcher.Constraint("Horizontal", 24))
sketch1.addConstraint(Sketcher.Constraint("Vertical", 26))
sketch1.addConstraint(Sketcher.Constraint("Horizontal", 28))
sketch1.addConstraint(Sketcher.Constraint("Vertical", 30))
sketch1.addConstraint(Sketcher.Constraint("Horizontal", 32))
sketch1.addConstraint(Sketcher.Constraint("Vertical", 34))
sketch1.addConstraint(Sketcher.Constraint("Horizontal", 36))
sketch1.addConstraint(Sketcher.Constraint("Vertical", 38))
sketch1.addConstraint(Sketcher.Constraint("Horizontal", 40))
sketch1.addConstraint(Sketcher.Constraint("Vertical", 42))
sketch1.addConstraint(Sketcher.Constraint("Horizontal", 44))
sketch1.addConstraint(Sketcher.Constraint("Vertical", 46))
sketch1.addConstraint(Sketcher.Constraint("Horizontal", 48))
sketch1.addConstraint(Sketcher.Constraint("Vertical", 50))
sketch1.addConstraint(Sketcher.Constraint("Horizontal", 52))
sketch1.addConstraint(Sketcher.Constraint("Vertical", 54))
sketch1.addConstraint(Sketcher.Constraint("Horizontal", 56))
sketch1.addConstraint(Sketcher.Constraint("Vertical", 58))
sketch1.addConstraint(Sketcher.Constraint("Horizontal", 60))
sketch1.addConstraint(Sketcher.Constraint("Vertical", 62))
sketch1.addConstraint(Sketcher.Constraint("Horizontal", 64))
sketch1.addConstraint(Sketcher.Constraint("Vertical", 66))
sketch1.addConstraint(Sketcher.Constraint("Horizontal", 68))
sketch1.addConstraint(Sketcher.Constraint("Vertical", 70))
sketch1.addConstraint(Sketcher.Constraint("Horizontal", 72))
sketch1.addConstraint(Sketcher.Constraint("Vertical", 74))
sketch1.addConstraint(Sketcher.Constraint("Horizontal", 76))
sketch1.addConstraint(Sketcher.Constraint("Vertical", 78))
sketch1.addConstraint(Sketcher.Constraint("Horizontal", 80))
sketch1.addConstraint(Sketcher.Constraint("Vertical", 82))
sketch1.addConstraint(Sketcher.Constraint("Horizontal", 84))
sketch1.addConstraint(Sketcher.Constraint("Vertical", 86))
sketch1.addConstraint(Sketcher.Constraint("Equal", 1, 3))
sketch1.addConstraint(Sketcher.Constraint("Equal", 3, 5))
sketch1.addConstraint(Sketcher.Constraint("Equal", 5, 7))
sketch1.addConstraint(Sketcher.Constraint("Equal", 7, 9))
sketch1.addConstraint(Sketcher.Constraint("Equal", 9, 11))
sketch1.addConstraint(Sketcher.Constraint("Equal", 11, 13))
sketch1.addConstraint(Sketcher.Constraint("Equal", 13, 15))
sketch1.addConstraint(Sketcher.Constraint("Equal", 15, 17))
sketch1.addConstraint(Sketcher.Constraint("Equal", 17, 19))
sketch1.addConstraint(Sketcher.Constraint("Equal", 19, 21))
sketch1.addConstraint(Sketcher.Constraint("Equal", 21, 23))
sketch1.addConstraint(Sketcher.Constraint("Equal", 23, 25))
sketch1.addConstraint(Sketcher.Constraint("Equal", 25, 27))
sketch1.addConstraint(Sketcher.Constraint("Equal", 27, 29))
sketch1.addConstraint(Sketcher.Constraint("Equal", 29, 31))
sketch1.addConstraint(Sketcher.Constraint("Equal", 31, 33))
sketch1.addConstraint(Sketcher.Constraint("Equal", 33, 35))
sketch1.addConstraint(Sketcher.Constraint("Equal", 35, 37))
sketch1.addConstraint(Sketcher.Constraint("Equal", 37, 39))
sketch1.addConstraint(Sketcher.Constraint("Equal", 39, 41))
sketch1.addConstraint(Sketcher.Constraint("Equal", 41, 43))
sketch1.addConstraint(Sketcher.Constraint("Equal", 43, 45))
sketch1.addConstraint(Sketcher.Constraint("Equal", 45, 47))
sketch1.addConstraint(Sketcher.Constraint("Equal", 47, 49))
sketch1.addConstraint(Sketcher.Constraint("Equal", 49, 51))
sketch1.addConstraint(Sketcher.Constraint("Equal", 51, 53))
sketch1.addConstraint(Sketcher.Constraint("Equal", 53, 55))
sketch1.addConstraint(Sketcher.Constraint("Equal", 55, 57))
sketch1.addConstraint(Sketcher.Constraint("Equal", 57, 59))
sketch1.addConstraint(Sketcher.Constraint("Equal", 59, 61))
sketch1.addConstraint(Sketcher.Constraint("Equal", 61, 63))
sketch1.addConstraint(Sketcher.Constraint("Equal", 63, 65))
sketch1.addConstraint(Sketcher.Constraint("Equal", 65, 67))
sketch1.addConstraint(Sketcher.Constraint("Equal", 67, 69))
sketch1.addConstraint(Sketcher.Constraint("Equal", 69, 71))
sketch1.addConstraint(Sketcher.Constraint("Equal", 71, 73))
sketch1.addConstraint(Sketcher.Constraint("Equal", 73, 75))
sketch1.addConstraint(Sketcher.Constraint("Equal", 75, 77))
sketch1.addConstraint(Sketcher.Constraint("Equal", 77, 79))
sketch1.addConstraint(Sketcher.Constraint("Equal", 79, 81))
sketch1.addConstraint(Sketcher.Constraint("Equal", 81, 83))
sketch1.addConstraint(Sketcher.Constraint("Equal", 83, 85))
sketch1.addConstraint(Sketcher.Constraint("Equal", 85, 87))
sketch1.addConstraint(Sketcher.Constraint("PointOnObject", 1, 2, -2))
sketch1.addConstraint(Sketcher.Constraint("PointOnObject", 9, 1, -2))
sketch1.addConstraint(Sketcher.Constraint("PointOnObject", 17, 2, -2))
sketch1.addConstraint(Sketcher.Constraint("PointOnObject", 25, 2, -2))
sketch1.addConstraint(Sketcher.Constraint("PointOnObject", 33, 2, -2))
sketch1.addConstraint(Sketcher.Constraint("PointOnObject", 41, 2, -2))
sketch1.addConstraint(Sketcher.Constraint("PointOnObject", 49, 2, -2))
sketch1.addConstraint(Sketcher.Constraint("PointOnObject", 57, 2, -2))
sketch1.addConstraint(Sketcher.Constraint("PointOnObject", 65, 2, -2))
sketch1.addConstraint(Sketcher.Constraint("PointOnObject", 73, 2, -2))
sketch1.addConstraint(Sketcher.Constraint("PointOnObject", 81, 2, -2))
sketch1.addConstraint(Sketcher.Constraint("Vertical", 15, 3, 21, 3))
sketch1.addConstraint(Sketcher.Constraint("Vertical", 23, 3, 29, 3))
sketch1.addConstraint(Sketcher.Constraint("Vertical", 31, 3, 37, 3))
sketch1.addConstraint(Sketcher.Constraint("Vertical", 39, 3, 45, 3))
sketch1.addConstraint(Sketcher.Constraint("Vertical", 47, 3, 53, 3))
sketch1.addConstraint(Sketcher.Constraint("Vertical", 55, 3, 61, 3))
sketch1.addConstraint(Sketcher.Constraint("Vertical", 63, 3, 69, 3))
sketch1.addConstraint(Sketcher.Constraint("Vertical", 71, 3, 77, 3))
sketch1.addConstraint(Sketcher.Constraint("Vertical", 79, 3, 85, 3))
sketch1.addConstraint(Sketcher.Constraint("Equal", 10, 18))
sketch1.addConstraint(Sketcher.Constraint("Equal", 14, 22))
sketch1.addConstraint(Sketcher.Constraint("Equal", 18, 26))
sketch1.addConstraint(Sketcher.Constraint("Equal", 22, 30))
sketch1.addConstraint(Sketcher.Constraint("Equal", 26, 34))
sketch1.addConstraint(Sketcher.Constraint("Equal", 30, 38))
sketch1.addConstraint(Sketcher.Constraint("Equal", 34, 42))
sketch1.addConstraint(Sketcher.Constraint("Equal", 38, 46))
sketch1.addConstraint(Sketcher.Constraint("Equal", 42, 50))
sketch1.addConstraint(Sketcher.Constraint("Equal", 46, 54))
sketch1.addConstraint(Sketcher.Constraint("Equal", 50, 58))
sketch1.addConstraint(Sketcher.Constraint("Equal", 54, 62))
sketch1.addConstraint(Sketcher.Constraint("Equal", 58, 66))
sketch1.addConstraint(Sketcher.Constraint("Equal", 62, 70))
sketch1.addConstraint(Sketcher.Constraint("Equal", 66, 74))
sketch1.addConstraint(Sketcher.Constraint("Equal", 70, 78))
sketch1.addConstraint(Sketcher.Constraint("Equal", 74, 82))
sketch1.addConstraint(Sketcher.Constraint("Equal", 78, 86))
sketch1.addConstraint(Sketcher.Constraint("Radius", 1, Q("0.75 mm")))
sketch1.addConstraint(Sketcher.Constraint("DistanceX", 0, 1, 0, 2, Q("6.5 mm")))
sketch1.addConstraint(Sketcher.Constraint("DistanceX", 4, 1, 4, 2, Q("13.5 mm")))
sketch1.addConstraint(Sketcher.Constraint("DistanceY", -1, 1, 3, 1, Q("8 mm")))
sketch1.addConstraint(Sketcher.Constraint("DistanceY", 2, 1, 2, 2, Q("9.04 mm")))
sketch1.addConstraint(Sketcher.Constraint("DistanceY", 6, 2, 6, 1, Q("67.340001 mm")))
sketch1.addConstraint(Sketcher.Constraint("DistanceY", 10, 1, 10, 2, Q("1.79 mm")))
pad1 = body.newObject("PartDesign::Pad", "Pad")
pad1.Profile = sketch1
pad1.Length = 1.2
pad1.Reversed = True

doc.recompute()
